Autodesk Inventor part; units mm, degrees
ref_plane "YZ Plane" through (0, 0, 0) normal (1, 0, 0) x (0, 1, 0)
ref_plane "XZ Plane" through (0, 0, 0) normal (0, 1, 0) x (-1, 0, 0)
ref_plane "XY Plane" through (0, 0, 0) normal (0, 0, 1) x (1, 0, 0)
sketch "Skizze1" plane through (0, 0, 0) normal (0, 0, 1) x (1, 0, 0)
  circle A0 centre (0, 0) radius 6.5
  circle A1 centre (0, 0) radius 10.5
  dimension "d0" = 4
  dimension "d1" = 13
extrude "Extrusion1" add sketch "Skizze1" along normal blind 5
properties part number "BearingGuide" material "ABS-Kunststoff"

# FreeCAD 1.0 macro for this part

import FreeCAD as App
import Part
import Sketcher
from FreeCAD import Vector
Q = App.Units.Quantity

doc = App.newDocument("Part")
body = doc.addObject("PartDesign::Body", "Body")

# Sketch on XY plane
sketch1 = body.newObject("Sketcher::SketchObject", "Sketch")
sketch1.AttachmentSupport = (doc.getObject("XY_Plane"), [""])
sketch1.MapMode = "FlatFace"
sketch1.addGeometry([
    Part.Circle(Vector(0, 0, 0), Vector(0, 0, 1), 10),
    Part.Circle(Vector(0, 0, 0), Vector(0, 0, 1), 6),
], False)
sketch1.addConstraint([
    Sketcher.Constraint("Coincident", 0, 3, -1, 1),
    Sketcher.Constraint("Coincident", 1, 3, -1, 1),
    Sketcher.Constraint("Diameter", 1, Q("13 mm")),
    Sketcher.Constraint("Diameter", 0, Q("21 mm")),
])
pad1 = body.newObject("PartDesign::Pad", "Pad")
pad1.Profile = sketch1
pad1.Length = 5

doc.recompute()
